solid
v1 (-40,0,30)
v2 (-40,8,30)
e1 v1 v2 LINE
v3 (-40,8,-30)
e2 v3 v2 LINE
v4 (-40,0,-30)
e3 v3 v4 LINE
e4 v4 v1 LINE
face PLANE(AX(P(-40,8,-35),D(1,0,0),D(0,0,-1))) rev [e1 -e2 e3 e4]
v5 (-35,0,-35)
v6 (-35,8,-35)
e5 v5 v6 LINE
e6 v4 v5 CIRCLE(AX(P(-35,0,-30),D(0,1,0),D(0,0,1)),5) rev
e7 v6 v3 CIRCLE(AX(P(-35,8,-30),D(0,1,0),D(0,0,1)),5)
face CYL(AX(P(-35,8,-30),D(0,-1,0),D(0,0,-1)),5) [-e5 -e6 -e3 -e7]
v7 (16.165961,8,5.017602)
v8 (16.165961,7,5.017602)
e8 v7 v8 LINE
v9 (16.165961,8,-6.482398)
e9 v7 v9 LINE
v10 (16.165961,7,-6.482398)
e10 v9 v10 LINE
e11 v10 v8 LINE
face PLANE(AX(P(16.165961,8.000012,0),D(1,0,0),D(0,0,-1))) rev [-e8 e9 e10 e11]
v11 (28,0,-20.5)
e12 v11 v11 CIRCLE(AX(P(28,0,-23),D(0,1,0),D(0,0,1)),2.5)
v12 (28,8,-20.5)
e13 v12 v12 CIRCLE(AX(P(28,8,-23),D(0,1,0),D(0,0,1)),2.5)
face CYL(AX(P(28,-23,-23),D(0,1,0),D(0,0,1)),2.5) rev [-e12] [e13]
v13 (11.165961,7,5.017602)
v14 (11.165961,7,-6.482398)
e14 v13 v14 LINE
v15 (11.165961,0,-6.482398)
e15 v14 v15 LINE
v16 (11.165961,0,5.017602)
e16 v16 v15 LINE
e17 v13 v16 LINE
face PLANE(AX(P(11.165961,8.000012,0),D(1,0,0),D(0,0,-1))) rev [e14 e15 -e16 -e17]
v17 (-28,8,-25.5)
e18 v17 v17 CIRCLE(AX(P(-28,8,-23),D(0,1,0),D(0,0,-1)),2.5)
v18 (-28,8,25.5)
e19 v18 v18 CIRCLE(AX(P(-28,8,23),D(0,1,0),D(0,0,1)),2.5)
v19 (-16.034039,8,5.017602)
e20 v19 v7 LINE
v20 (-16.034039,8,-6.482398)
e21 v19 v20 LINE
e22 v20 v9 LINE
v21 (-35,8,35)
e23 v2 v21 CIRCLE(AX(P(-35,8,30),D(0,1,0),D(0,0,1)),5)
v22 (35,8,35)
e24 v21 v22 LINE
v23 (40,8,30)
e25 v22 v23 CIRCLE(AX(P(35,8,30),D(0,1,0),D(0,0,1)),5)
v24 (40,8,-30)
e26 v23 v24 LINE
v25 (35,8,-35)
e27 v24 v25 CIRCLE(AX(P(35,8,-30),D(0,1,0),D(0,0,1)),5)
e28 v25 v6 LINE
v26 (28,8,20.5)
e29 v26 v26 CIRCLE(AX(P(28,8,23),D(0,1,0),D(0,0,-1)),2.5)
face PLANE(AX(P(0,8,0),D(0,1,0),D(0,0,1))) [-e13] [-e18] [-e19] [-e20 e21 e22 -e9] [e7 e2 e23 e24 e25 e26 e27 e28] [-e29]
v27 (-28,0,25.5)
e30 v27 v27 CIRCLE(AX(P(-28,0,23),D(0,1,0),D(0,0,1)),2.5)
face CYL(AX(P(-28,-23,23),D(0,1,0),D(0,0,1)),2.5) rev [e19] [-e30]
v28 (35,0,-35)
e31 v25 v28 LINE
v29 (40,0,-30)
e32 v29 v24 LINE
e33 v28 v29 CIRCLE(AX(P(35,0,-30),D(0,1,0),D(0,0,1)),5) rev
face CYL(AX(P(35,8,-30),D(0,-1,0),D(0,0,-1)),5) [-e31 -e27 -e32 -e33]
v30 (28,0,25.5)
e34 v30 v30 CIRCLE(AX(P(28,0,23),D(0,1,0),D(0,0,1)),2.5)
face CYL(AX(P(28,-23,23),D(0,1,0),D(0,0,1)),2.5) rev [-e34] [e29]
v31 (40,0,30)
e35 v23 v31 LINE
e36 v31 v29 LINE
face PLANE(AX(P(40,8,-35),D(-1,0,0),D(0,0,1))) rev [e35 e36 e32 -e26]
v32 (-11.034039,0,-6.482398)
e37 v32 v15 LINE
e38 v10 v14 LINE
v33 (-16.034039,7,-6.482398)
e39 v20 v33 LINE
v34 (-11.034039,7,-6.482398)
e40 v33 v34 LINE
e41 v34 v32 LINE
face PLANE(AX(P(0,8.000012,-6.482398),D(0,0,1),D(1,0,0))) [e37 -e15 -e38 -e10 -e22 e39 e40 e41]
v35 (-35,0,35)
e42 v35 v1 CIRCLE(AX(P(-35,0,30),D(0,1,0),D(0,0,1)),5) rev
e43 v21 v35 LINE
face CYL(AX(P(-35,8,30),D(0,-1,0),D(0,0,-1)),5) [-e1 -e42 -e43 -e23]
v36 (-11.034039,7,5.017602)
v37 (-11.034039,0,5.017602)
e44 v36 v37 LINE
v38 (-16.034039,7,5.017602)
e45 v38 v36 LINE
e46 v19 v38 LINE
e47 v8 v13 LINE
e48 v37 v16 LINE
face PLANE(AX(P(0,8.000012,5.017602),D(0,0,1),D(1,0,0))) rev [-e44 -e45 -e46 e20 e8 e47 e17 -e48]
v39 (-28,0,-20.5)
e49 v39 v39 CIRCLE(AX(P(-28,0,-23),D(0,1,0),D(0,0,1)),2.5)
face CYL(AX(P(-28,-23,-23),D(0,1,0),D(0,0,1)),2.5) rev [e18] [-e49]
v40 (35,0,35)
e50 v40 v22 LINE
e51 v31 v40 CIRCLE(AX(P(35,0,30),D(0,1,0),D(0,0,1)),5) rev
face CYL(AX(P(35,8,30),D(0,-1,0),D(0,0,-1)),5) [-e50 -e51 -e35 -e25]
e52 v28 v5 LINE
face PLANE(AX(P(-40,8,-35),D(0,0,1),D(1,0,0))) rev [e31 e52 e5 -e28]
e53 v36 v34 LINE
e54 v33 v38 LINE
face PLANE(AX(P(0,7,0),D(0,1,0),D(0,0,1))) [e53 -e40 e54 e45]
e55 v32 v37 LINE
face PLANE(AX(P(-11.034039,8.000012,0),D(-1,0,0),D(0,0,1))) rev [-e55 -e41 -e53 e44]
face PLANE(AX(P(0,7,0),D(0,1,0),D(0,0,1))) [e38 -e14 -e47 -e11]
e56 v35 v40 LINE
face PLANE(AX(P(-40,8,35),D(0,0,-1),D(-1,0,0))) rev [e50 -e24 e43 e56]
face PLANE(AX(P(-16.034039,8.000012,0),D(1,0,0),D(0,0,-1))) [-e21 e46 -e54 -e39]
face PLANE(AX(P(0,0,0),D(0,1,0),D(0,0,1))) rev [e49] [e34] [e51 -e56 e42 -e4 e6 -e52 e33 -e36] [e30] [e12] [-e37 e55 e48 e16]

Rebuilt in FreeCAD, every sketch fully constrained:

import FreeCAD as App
import Part
import Sketcher
from FreeCAD import Vector
Q = App.Units.Quantity


def edges_at(feature, points):
    """Names of the edges that pass closest to the given points."""
    edges = feature.Shape.Edges
    near = lambda p: min(range(len(edges)), key=lambda i: edges[i].distToShape(Part.Vertex(*p))[0])
    return sorted({f"Edge{near(p) + 1}" for p in points})

doc = App.newDocument("Part")
params = doc.addObject("Spreadsheet::Sheet", "Params")
for row, (alias, value) in enumerate([
    ("sketch1_width", "80 mm"),
    ("sketch1_height", "70 mm"),
    ("pad1_length", "8 mm"),
    ("fillet_radius", "5 mm"),
    ("sketch2_width", "22.2 mm"),
    ("sketch2_height", "11.5 mm"),
    ("sketch3_width", "5 mm"),
    ("sketch3_height", "11.5 mm"),
    ("pocket2_length", "54.749419 mm"),
    ("pocket2_length2", "1 mm"),
    ("sketch4_diameter", "5 mm"),
    ("pocket3_length", "31 mm"),
], start=1):
    params.set(f"A{row}", alias)
    params.set(f"B{row}", "=" + value)
    params.setAlias(f"B{row}", alias)

body = doc.addObject("PartDesign::Body", "Body")

sketch1 = body.newObject("Sketcher::SketchObject", "Sketch")
sketch1.AttachmentSupport = (doc.getObject("XZ_Plane"), [""])
sketch1.MapMode = "FlatFace"
sketch1.addGeometry([
    Part.LineSegment(Vector(-40, -35, 0), Vector(-40, 35, 0)),
    Part.LineSegment(Vector(-40, 35, 0), Vector(40, 35, 0)),
    Part.LineSegment(Vector(40, 35, 0), Vector(40, -35, 0)),
    Part.LineSegment(Vector(40, -35, 0), Vector(-40, -35, 0)),
], False)
sketch1.addConstraint([
    Sketcher.Constraint("Coincident", 0, 2, 1, 1),
    Sketcher.Constraint("Coincident", 1, 2, 2, 1),
    Sketcher.Constraint("Coincident", 2, 2, 3, 1),
    Sketcher.Constraint("Coincident", 3, 2, 0, 1),
    Sketcher.Constraint("Vertical", 0),
    Sketcher.Constraint("Horizontal", 1),
    Sketcher.Constraint("Vertical", 2),
    Sketcher.Constraint("Horizontal", 3),
    Sketcher.Constraint("Symmetric", 0, 2, 2, 2, -1, 1),
    Sketcher.Constraint("DistanceX", 1, 1, 1, 2, Q("80 mm")),
    Sketcher.Constraint("DistanceY", 0, 1, 0, 2, Q("70 mm")),
])
sketch1.setExpression("Constraints[9]", "Params.sketch1_width")
sketch1.setExpression("Constraints[10]", "Params.sketch1_height")
pad1 = body.newObject("PartDesign::Pad", "Pad")
pad1.Profile = sketch1
pad1.setExpression("Length", "Params.pad1_length")
pad1.Reversed = True
doc.recompute()

fillet = body.newObject("PartDesign::Fillet", "Fillet")
fillet.Base = (pad1, edges_at(pad1, [
    (40, 4, 35),
    (-40, 4, 35),
    (-40, 4, -35),
    (40, 4, -35),
]))
fillet.setExpression("Radius", "Params.fillet_radius")

sketch2 = body.newObject("Sketcher::SketchObject", "Sketch001")
sketch2.AttachmentSupport = (doc.getObject("XZ_Plane"), [""])
sketch2.MapMode = "FlatFace"
sketch2.AttachmentOffset = App.Placement(Vector(0, 0, -8), App.Rotation())
sketch2.addGeometry([
    Part.LineSegment(Vector(-11.034039, 5.017602, 0), Vector(11.165961, 5.017602, 0)),
    Part.LineSegment(Vector(11.165961, 5.017602, 0), Vector(11.165961, -6.482398, 0)),
    Part.LineSegment(Vector(11.165961, -6.482398, 0), Vector(-11.034039, -6.482398, 0)),
    Part.LineSegment(Vector(-11.034039, -6.482398, 0), Vector(-11.034039, 5.017602, 0)),
], False)
sketch2.addConstraint([
    Sketcher.Constraint("Coincident", 0, 2, 1, 1),
    Sketcher.Constraint("Coincident", 1, 2, 2, 1),
    Sketcher.Constraint("Coincident", 2, 2, 3, 1),
    Sketcher.Constraint("Coincident", 3, 2, 0, 1),
    Sketcher.Constraint("Horizontal", 0),
    Sketcher.Constraint("Vertical", 1),
    Sketcher.Constraint("Horizontal", 2),
    Sketcher.Constraint("Vertical", 3),
    Sketcher.Constraint("DistanceX", 0, 1, 0, 2, Q("22.2 mm")),
    Sketcher.Constraint("DistanceY", 1, 2, 1, 1, Q("11.5 mm")),
    Sketcher.Constraint("DistanceX", -1, 1, 0, 2, Q("11.165961 mm")),
    Sketcher.Constraint("DistanceY", -1, 1, 0, 2, Q("5.017602 mm")),
])
sketch2.setExpression("Constraints[8]", "Params.sketch2_width")
sketch2.setExpression("Constraints[9]", "Params.sketch2_height")
pocket1 = body.newObject("PartDesign::Pocket", "Pocket")
pocket1.Profile = sketch2
pocket1.Type = "ThroughAll"
pocket1.Midplane = True

sketch3 = body.newObject("Sketcher::SketchObject", "Sketch002")
sketch3.AttachmentSupport = (doc.getObject("XZ_Plane"), [""])
sketch3.MapMode = "FlatFace"
sketch3.AttachmentOffset = App.Placement(Vector(0, 0, -8), App.Rotation())
sketch3.addGeometry([
    Part.LineSegment(Vector(11.165961, -6.482398, 0), Vector(11.165961, 5.017602, 0)),
    Part.LineSegment(Vector(11.165961, 5.017602, 0), Vector(16.165961, 5.017602, 0)),
    Part.LineSegment(Vector(16.165961, 5.017602, 0), Vector(16.165961, -6.482398, 0)),
    Part.LineSegment(Vector(16.165961, -6.482398, 0), Vector(11.165961, -6.482398, 0)),
    Part.LineSegment(Vector(-16.034039, -6.482398, 0), Vector(-16.034039, 5.017602, 0)),
    Part.LineSegment(Vector(-16.034039, 5.017602, 0), Vector(-11.034039, 5.017602, 0)),
    Part.LineSegment(Vector(-11.034039, 5.017602, 0), Vector(-11.034039, -6.482398, 0)),
    Part.LineSegment(Vector(-11.034039, -6.482398, 0), Vector(-16.034039, -6.482398, 0)),
], False)
sketch3.addConstraint([
    Sketcher.Constraint("Coincident", 0, 2, 1, 1),
    Sketcher.Constraint("Coincident", 1, 2, 2, 1),
    Sketcher.Constraint("Coincident", 2, 2, 3, 1),
    Sketcher.Constraint("Coincident", 3, 2, 0, 1),
    Sketcher.Constraint("Coincident", 4, 2, 5, 1),
    Sketcher.Constraint("Coincident", 5, 2, 6, 1),
    Sketcher.Constraint("Coincident", 6, 2, 7, 1),
    Sketcher.Constraint("Coincident", 7, 2, 4, 1),
    Sketcher.Constraint("Vertical", 0),
    Sketcher.Constraint("Horizontal", 1),
    Sketcher.Constraint("Vertical", 2),
    Sketcher.Constraint("Horizontal", 3),
    Sketcher.Constraint("Vertical", 4),
    Sketcher.Constraint("Horizontal", 5),
    Sketcher.Constraint("Vertical", 6),
    Sketcher.Constraint("Horizontal", 7),
    Sketcher.Constraint("Horizontal", 1, 2, 4, 2),
    Sketcher.Constraint("Horizontal", 3, 2, 6, 2),
    Sketcher.Constraint("Equal", 3, 5),
    Sketcher.Constraint("DistanceX", 1, 1, 1, 2, Q("5 mm")),
    Sketcher.Constraint("DistanceY", 0, 1, 0, 2, Q("11.5 mm")),
    Sketcher.Constraint("DistanceX", 4, 2, 0, 2, Q("27.2 mm")),
    Sketcher.Constraint("DistanceX", -1, 1, 0, 2, Q("11.165961 mm")),
    Sketcher.Constraint("DistanceY", -1, 1, 0, 2, Q("5.017602 mm")),
])
sketch3.setExpression("Constraints[19]", "Params.sketch3_width")
sketch3.setExpression("Constraints[20]", "Params.sketch3_height")
pocket2 = body.newObject("PartDesign::Pocket", "Pocket001")
pocket2.Profile = sketch3
pocket2.Type = "TwoLengths"
pocket2.setExpression("Length", "Params.pocket2_length")
pocket2.setExpression("Length2", "Params.pocket2_length2")

sketch4 = body.newObject("Sketcher::SketchObject", "Sketch003")
sketch4.AttachmentSupport = (doc.getObject("XZ_Plane"), [""])
sketch4.MapMode = "FlatFace"
sketch4.AttachmentOffset = App.Placement(Vector(0, 0, -8), App.Rotation())
sketch4.addGeometry([
    Part.Circle(Vector(28, -23, 0), Vector(0, 0, 1), 2.5),
    Part.Circle(Vector(28, 23, 0), Vector(0, 0, 1), 2.5),
    Part.Circle(Vector(-28, -23, 0), Vector(0, 0, 1), 2.5),
    Part.Circle(Vector(-28, 23, 0), Vector(0, 0, 1), 2.5),
], False)
sketch4.addConstraint([
    Sketcher.Constraint("Equal", 0, 1),
    Sketcher.Constraint("Equal", 1, 2),
    Sketcher.Constraint("Equal", 2, 3),
    Sketcher.Constraint("Symmetric", 1, 3, 2, 3, -1, 1),
    Sketcher.Constraint("Symmetric", 0, 3, 3, 3, -1, 1),
    Sketcher.Constraint("Symmetric", 0, 3, 2, 3, -2),
    Sketcher.Constraint("Diameter", 0, Q("5 mm")),
    Sketcher.Constraint("DistanceX", -1, 1, 0, 3, Q("28 mm")),
    Sketcher.Constraint("DistanceY", 0, 3, -1, 1, Q("23 mm")),
])
sketch4.setExpression("Constraints[6]", "Params.sketch4_diameter")
pocket3 = body.newObject("PartDesign::Pocket", "Pocket002")
pocket3.Profile = sketch4
pocket3.setExpression("Length", "Params.pocket3_length")
pocket3.Reversed = True

doc.recompute()
